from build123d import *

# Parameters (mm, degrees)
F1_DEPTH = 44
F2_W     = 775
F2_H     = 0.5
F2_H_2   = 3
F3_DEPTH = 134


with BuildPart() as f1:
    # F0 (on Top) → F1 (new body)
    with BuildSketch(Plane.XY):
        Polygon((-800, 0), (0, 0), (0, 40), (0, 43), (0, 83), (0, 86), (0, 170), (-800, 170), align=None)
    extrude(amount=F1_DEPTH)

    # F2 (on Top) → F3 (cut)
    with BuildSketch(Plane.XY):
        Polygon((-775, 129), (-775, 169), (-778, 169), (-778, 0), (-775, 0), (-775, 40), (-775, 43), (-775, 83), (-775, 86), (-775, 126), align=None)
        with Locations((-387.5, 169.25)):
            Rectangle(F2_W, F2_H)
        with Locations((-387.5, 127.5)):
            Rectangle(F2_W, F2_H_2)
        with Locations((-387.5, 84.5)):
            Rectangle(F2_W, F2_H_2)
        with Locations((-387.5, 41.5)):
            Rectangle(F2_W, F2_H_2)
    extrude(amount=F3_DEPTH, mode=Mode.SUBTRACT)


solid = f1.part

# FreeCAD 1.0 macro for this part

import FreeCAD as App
import Part
import Sketcher
Q = App.Units.Quantity


def add_polygon(sketch, points):
    """Adds a closed chain of lines whose ends are joined by coincident constraints."""
    first, n = sketch.GeometryCount, len(points)
    for a, b in zip(points, points[1:] + points[:1]):
        sketch.addGeometry(Part.LineSegment(App.Vector(*a, 0), App.Vector(*b, 0)), False)
    for i in range(n):
        sketch.addConstraint(Sketcher.Constraint("Coincident", first + i, 2, first + (i + 1) % n, 1))

doc = App.newDocument("Part")
body = doc.addObject("PartDesign::Body", "Body")
body.AllowCompound = True

# Sketch on XY plane
sketch1 = body.newObject("Sketcher::SketchObject", "Sketch")
sketch1.AttachmentSupport = (doc.getObject("XY_Plane"), [""])
sketch1.MapMode = "FlatFace"
add_polygon(sketch1, [(-800, 0), (0, 0), (0, 170), (-800, 170)])  # lines 0-3
sketch1.addConstraint([
    Sketcher.Constraint("Horizontal", 0),
    Sketcher.Constraint("Vertical", 1),
    Sketcher.Constraint("Horizontal", 2),
    Sketcher.Constraint("Vertical", 3),
    Sketcher.Constraint("Coincident", 0, 2, -1, 1),
    Sketcher.Constraint("DistanceX", 0, 1, 0, 2, Q("800 mm")),
    Sketcher.Constraint("DistanceY", 1, 1, 1, 2, Q("170 mm")),
])
pad1 = body.newObject("PartDesign::Pad", "Pad")
pad1.Profile = sketch1
pad1.Length = 44

# Sketch on XY plane
sketch2 = body.newObject("Sketcher::SketchObject", "Sketch001")
sketch2.AttachmentSupport = (doc.getObject("XY_Plane"), [""])
sketch2.MapMode = "FlatFace"
add_polygon(sketch2, [(-775, 169), (-778, 169), (-778, 0), (-775, 0), (-775, 40), (0, 40), (0, 43), (-775, 43), (-775, 83), (0, 83), (0, 86), (-775, 86), (-775, 126), (0, 126), (0, 129), (-775, 129)])  # lines 0-15
add_polygon(sketch2, [(-775, 169.5), (-775, 169), (0, 169), (0, 169.5)])  # lines 16-19
sketch2.addConstraint([
    Sketcher.Constraint("Horizontal", 0),
    Sketcher.Constraint("Vertical", 1),
    Sketcher.Constraint("Horizontal", 2),
    Sketcher.Constraint("Vertical", 3),
    Sketcher.Constraint("Horizontal", 4),
    Sketcher.Constraint("Vertical", 5),
    Sketcher.Constraint("Horizontal", 6),
    Sketcher.Constraint("Vertical", 7),
    Sketcher.Constraint("Horizontal", 8),
    Sketcher.Constraint("Vertical", 9),
    Sketcher.Constraint("Horizontal", 10),
    Sketcher.Constraint("Vertical", 11),
    Sketcher.Constraint("Horizontal", 12),
    Sketcher.Constraint("Vertical", 13),
    Sketcher.Constraint("Horizontal", 14),
    Sketcher.Constraint("Vertical", 15),
    Sketcher.Constraint("Vertical", 16),
    Sketcher.Constraint("Horizontal", 17),
    Sketcher.Constraint("Vertical", 18),
    Sketcher.Constraint("Horizontal", 19),
    Sketcher.Constraint("Coincident", 16, 2, 15, 2),
    Sketcher.Constraint("PointOnObject", 1, 2, -1),
    Sketcher.Constraint("PointOnObject", 4, 2, -2),
    Sketcher.Constraint("PointOnObject", 8, 2, -2),
    Sketcher.Constraint("PointOnObject", 12, 2, -2),
    Sketcher.Constraint("PointOnObject", 17, 2, -2),
    Sketcher.Constraint("Vertical", 3, 2, 6, 2),
    Sketcher.Constraint("Vertical", 7, 2, 10, 2),
    Sketcher.Constraint("Vertical", 11, 2, 14, 2),
    Sketcher.Constraint("Equal", 2, 5),
    Sketcher.Constraint("Equal", 3, 7),
    Sketcher.Constraint("Equal", 5, 9),
    Sketcher.Constraint("Equal", 7, 11),
    Sketcher.Constraint("Equal", 9, 13),
    Sketcher.Constraint("Equal", 11, 15),
    Sketcher.Constraint("DistanceX", 0, 2, 0, 1, Q("3 mm")),
    Sketcher.Constraint("DistanceX", 4, 1, 4, 2, Q("775 mm")),
    Sketcher.Constraint("DistanceY", 1, 2, 1, 1, Q("169 mm")),
    Sketcher.Constraint("DistanceY", 16, 2, 16, 1, Q("0.5 mm")),
])
pocket1 = body.newObject("PartDesign::Pocket", "Pocket")
pocket1.Profile = sketch2
pocket1.Length = 134
pocket1.Reversed = True

doc.recompute()
